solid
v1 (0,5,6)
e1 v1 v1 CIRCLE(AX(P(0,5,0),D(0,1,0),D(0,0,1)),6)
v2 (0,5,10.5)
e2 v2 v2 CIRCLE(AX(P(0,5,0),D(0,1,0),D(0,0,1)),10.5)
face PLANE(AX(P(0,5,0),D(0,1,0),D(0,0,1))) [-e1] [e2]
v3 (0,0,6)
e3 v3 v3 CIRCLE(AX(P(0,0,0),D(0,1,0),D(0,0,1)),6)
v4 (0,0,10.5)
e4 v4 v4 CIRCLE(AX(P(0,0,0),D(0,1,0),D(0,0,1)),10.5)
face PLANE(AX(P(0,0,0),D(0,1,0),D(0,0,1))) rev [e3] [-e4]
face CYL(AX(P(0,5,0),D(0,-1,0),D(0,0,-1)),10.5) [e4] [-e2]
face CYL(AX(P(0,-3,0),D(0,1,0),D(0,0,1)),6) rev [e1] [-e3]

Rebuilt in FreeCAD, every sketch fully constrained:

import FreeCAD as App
import Part
import Sketcher
from FreeCAD import Vector

doc = App.newDocument("Part")
body = doc.addObject("PartDesign::Body", "Body")

sketch1 = doc.addObject("Sketcher::SketchObject", "Sketch")
body.addObject(sketch1)
sketch1.AttachmentSupport = (doc.XZ_Plane, [""])
sketch1.MapMode = "FlatFace"
sketch1.addGeometry(Part.Circle(Vector(0, 0, 0), Vector(0, 0, 1), 10), False)
sketch1.addConstraint([
    Sketcher.Constraint("Coincident", 0, 3, -1, 1),
    Sketcher.Constraint("Diameter", 0, 21.0),
])
pad1 = doc.addObject("PartDesign::Pad", "Pad")
body.addObject(pad1)
pad1.Profile = sketch1
pad1.Length = 5
pad1.Reversed = True

sketch2 = doc.addObject("Sketcher::SketchObject", "Sketch001")
body.addObject(sketch2)
sketch2.AttachmentSupport = (doc.XZ_Plane, [""])
sketch2.MapMode = "FlatFace"
sketch2.AttachmentOffset = App.Placement(Vector(0, 0, -5), App.Rotation())
sketch2.addGeometry(Part.Circle(Vector(0, 0, 0), Vector(0, 0, 1), 6), False)
sketch2.addConstraint([
    Sketcher.Constraint("Coincident", 0, 3, -1, 1),
    Sketcher.Constraint("Diameter", 0, 12.0),
])
pocket1 = doc.addObject("PartDesign::Pocket", "Pocket")
body.addObject(pocket1)
pocket1.Profile = sketch2
pocket1.Length = 8
pocket1.Reversed = True

doc.recompute()
